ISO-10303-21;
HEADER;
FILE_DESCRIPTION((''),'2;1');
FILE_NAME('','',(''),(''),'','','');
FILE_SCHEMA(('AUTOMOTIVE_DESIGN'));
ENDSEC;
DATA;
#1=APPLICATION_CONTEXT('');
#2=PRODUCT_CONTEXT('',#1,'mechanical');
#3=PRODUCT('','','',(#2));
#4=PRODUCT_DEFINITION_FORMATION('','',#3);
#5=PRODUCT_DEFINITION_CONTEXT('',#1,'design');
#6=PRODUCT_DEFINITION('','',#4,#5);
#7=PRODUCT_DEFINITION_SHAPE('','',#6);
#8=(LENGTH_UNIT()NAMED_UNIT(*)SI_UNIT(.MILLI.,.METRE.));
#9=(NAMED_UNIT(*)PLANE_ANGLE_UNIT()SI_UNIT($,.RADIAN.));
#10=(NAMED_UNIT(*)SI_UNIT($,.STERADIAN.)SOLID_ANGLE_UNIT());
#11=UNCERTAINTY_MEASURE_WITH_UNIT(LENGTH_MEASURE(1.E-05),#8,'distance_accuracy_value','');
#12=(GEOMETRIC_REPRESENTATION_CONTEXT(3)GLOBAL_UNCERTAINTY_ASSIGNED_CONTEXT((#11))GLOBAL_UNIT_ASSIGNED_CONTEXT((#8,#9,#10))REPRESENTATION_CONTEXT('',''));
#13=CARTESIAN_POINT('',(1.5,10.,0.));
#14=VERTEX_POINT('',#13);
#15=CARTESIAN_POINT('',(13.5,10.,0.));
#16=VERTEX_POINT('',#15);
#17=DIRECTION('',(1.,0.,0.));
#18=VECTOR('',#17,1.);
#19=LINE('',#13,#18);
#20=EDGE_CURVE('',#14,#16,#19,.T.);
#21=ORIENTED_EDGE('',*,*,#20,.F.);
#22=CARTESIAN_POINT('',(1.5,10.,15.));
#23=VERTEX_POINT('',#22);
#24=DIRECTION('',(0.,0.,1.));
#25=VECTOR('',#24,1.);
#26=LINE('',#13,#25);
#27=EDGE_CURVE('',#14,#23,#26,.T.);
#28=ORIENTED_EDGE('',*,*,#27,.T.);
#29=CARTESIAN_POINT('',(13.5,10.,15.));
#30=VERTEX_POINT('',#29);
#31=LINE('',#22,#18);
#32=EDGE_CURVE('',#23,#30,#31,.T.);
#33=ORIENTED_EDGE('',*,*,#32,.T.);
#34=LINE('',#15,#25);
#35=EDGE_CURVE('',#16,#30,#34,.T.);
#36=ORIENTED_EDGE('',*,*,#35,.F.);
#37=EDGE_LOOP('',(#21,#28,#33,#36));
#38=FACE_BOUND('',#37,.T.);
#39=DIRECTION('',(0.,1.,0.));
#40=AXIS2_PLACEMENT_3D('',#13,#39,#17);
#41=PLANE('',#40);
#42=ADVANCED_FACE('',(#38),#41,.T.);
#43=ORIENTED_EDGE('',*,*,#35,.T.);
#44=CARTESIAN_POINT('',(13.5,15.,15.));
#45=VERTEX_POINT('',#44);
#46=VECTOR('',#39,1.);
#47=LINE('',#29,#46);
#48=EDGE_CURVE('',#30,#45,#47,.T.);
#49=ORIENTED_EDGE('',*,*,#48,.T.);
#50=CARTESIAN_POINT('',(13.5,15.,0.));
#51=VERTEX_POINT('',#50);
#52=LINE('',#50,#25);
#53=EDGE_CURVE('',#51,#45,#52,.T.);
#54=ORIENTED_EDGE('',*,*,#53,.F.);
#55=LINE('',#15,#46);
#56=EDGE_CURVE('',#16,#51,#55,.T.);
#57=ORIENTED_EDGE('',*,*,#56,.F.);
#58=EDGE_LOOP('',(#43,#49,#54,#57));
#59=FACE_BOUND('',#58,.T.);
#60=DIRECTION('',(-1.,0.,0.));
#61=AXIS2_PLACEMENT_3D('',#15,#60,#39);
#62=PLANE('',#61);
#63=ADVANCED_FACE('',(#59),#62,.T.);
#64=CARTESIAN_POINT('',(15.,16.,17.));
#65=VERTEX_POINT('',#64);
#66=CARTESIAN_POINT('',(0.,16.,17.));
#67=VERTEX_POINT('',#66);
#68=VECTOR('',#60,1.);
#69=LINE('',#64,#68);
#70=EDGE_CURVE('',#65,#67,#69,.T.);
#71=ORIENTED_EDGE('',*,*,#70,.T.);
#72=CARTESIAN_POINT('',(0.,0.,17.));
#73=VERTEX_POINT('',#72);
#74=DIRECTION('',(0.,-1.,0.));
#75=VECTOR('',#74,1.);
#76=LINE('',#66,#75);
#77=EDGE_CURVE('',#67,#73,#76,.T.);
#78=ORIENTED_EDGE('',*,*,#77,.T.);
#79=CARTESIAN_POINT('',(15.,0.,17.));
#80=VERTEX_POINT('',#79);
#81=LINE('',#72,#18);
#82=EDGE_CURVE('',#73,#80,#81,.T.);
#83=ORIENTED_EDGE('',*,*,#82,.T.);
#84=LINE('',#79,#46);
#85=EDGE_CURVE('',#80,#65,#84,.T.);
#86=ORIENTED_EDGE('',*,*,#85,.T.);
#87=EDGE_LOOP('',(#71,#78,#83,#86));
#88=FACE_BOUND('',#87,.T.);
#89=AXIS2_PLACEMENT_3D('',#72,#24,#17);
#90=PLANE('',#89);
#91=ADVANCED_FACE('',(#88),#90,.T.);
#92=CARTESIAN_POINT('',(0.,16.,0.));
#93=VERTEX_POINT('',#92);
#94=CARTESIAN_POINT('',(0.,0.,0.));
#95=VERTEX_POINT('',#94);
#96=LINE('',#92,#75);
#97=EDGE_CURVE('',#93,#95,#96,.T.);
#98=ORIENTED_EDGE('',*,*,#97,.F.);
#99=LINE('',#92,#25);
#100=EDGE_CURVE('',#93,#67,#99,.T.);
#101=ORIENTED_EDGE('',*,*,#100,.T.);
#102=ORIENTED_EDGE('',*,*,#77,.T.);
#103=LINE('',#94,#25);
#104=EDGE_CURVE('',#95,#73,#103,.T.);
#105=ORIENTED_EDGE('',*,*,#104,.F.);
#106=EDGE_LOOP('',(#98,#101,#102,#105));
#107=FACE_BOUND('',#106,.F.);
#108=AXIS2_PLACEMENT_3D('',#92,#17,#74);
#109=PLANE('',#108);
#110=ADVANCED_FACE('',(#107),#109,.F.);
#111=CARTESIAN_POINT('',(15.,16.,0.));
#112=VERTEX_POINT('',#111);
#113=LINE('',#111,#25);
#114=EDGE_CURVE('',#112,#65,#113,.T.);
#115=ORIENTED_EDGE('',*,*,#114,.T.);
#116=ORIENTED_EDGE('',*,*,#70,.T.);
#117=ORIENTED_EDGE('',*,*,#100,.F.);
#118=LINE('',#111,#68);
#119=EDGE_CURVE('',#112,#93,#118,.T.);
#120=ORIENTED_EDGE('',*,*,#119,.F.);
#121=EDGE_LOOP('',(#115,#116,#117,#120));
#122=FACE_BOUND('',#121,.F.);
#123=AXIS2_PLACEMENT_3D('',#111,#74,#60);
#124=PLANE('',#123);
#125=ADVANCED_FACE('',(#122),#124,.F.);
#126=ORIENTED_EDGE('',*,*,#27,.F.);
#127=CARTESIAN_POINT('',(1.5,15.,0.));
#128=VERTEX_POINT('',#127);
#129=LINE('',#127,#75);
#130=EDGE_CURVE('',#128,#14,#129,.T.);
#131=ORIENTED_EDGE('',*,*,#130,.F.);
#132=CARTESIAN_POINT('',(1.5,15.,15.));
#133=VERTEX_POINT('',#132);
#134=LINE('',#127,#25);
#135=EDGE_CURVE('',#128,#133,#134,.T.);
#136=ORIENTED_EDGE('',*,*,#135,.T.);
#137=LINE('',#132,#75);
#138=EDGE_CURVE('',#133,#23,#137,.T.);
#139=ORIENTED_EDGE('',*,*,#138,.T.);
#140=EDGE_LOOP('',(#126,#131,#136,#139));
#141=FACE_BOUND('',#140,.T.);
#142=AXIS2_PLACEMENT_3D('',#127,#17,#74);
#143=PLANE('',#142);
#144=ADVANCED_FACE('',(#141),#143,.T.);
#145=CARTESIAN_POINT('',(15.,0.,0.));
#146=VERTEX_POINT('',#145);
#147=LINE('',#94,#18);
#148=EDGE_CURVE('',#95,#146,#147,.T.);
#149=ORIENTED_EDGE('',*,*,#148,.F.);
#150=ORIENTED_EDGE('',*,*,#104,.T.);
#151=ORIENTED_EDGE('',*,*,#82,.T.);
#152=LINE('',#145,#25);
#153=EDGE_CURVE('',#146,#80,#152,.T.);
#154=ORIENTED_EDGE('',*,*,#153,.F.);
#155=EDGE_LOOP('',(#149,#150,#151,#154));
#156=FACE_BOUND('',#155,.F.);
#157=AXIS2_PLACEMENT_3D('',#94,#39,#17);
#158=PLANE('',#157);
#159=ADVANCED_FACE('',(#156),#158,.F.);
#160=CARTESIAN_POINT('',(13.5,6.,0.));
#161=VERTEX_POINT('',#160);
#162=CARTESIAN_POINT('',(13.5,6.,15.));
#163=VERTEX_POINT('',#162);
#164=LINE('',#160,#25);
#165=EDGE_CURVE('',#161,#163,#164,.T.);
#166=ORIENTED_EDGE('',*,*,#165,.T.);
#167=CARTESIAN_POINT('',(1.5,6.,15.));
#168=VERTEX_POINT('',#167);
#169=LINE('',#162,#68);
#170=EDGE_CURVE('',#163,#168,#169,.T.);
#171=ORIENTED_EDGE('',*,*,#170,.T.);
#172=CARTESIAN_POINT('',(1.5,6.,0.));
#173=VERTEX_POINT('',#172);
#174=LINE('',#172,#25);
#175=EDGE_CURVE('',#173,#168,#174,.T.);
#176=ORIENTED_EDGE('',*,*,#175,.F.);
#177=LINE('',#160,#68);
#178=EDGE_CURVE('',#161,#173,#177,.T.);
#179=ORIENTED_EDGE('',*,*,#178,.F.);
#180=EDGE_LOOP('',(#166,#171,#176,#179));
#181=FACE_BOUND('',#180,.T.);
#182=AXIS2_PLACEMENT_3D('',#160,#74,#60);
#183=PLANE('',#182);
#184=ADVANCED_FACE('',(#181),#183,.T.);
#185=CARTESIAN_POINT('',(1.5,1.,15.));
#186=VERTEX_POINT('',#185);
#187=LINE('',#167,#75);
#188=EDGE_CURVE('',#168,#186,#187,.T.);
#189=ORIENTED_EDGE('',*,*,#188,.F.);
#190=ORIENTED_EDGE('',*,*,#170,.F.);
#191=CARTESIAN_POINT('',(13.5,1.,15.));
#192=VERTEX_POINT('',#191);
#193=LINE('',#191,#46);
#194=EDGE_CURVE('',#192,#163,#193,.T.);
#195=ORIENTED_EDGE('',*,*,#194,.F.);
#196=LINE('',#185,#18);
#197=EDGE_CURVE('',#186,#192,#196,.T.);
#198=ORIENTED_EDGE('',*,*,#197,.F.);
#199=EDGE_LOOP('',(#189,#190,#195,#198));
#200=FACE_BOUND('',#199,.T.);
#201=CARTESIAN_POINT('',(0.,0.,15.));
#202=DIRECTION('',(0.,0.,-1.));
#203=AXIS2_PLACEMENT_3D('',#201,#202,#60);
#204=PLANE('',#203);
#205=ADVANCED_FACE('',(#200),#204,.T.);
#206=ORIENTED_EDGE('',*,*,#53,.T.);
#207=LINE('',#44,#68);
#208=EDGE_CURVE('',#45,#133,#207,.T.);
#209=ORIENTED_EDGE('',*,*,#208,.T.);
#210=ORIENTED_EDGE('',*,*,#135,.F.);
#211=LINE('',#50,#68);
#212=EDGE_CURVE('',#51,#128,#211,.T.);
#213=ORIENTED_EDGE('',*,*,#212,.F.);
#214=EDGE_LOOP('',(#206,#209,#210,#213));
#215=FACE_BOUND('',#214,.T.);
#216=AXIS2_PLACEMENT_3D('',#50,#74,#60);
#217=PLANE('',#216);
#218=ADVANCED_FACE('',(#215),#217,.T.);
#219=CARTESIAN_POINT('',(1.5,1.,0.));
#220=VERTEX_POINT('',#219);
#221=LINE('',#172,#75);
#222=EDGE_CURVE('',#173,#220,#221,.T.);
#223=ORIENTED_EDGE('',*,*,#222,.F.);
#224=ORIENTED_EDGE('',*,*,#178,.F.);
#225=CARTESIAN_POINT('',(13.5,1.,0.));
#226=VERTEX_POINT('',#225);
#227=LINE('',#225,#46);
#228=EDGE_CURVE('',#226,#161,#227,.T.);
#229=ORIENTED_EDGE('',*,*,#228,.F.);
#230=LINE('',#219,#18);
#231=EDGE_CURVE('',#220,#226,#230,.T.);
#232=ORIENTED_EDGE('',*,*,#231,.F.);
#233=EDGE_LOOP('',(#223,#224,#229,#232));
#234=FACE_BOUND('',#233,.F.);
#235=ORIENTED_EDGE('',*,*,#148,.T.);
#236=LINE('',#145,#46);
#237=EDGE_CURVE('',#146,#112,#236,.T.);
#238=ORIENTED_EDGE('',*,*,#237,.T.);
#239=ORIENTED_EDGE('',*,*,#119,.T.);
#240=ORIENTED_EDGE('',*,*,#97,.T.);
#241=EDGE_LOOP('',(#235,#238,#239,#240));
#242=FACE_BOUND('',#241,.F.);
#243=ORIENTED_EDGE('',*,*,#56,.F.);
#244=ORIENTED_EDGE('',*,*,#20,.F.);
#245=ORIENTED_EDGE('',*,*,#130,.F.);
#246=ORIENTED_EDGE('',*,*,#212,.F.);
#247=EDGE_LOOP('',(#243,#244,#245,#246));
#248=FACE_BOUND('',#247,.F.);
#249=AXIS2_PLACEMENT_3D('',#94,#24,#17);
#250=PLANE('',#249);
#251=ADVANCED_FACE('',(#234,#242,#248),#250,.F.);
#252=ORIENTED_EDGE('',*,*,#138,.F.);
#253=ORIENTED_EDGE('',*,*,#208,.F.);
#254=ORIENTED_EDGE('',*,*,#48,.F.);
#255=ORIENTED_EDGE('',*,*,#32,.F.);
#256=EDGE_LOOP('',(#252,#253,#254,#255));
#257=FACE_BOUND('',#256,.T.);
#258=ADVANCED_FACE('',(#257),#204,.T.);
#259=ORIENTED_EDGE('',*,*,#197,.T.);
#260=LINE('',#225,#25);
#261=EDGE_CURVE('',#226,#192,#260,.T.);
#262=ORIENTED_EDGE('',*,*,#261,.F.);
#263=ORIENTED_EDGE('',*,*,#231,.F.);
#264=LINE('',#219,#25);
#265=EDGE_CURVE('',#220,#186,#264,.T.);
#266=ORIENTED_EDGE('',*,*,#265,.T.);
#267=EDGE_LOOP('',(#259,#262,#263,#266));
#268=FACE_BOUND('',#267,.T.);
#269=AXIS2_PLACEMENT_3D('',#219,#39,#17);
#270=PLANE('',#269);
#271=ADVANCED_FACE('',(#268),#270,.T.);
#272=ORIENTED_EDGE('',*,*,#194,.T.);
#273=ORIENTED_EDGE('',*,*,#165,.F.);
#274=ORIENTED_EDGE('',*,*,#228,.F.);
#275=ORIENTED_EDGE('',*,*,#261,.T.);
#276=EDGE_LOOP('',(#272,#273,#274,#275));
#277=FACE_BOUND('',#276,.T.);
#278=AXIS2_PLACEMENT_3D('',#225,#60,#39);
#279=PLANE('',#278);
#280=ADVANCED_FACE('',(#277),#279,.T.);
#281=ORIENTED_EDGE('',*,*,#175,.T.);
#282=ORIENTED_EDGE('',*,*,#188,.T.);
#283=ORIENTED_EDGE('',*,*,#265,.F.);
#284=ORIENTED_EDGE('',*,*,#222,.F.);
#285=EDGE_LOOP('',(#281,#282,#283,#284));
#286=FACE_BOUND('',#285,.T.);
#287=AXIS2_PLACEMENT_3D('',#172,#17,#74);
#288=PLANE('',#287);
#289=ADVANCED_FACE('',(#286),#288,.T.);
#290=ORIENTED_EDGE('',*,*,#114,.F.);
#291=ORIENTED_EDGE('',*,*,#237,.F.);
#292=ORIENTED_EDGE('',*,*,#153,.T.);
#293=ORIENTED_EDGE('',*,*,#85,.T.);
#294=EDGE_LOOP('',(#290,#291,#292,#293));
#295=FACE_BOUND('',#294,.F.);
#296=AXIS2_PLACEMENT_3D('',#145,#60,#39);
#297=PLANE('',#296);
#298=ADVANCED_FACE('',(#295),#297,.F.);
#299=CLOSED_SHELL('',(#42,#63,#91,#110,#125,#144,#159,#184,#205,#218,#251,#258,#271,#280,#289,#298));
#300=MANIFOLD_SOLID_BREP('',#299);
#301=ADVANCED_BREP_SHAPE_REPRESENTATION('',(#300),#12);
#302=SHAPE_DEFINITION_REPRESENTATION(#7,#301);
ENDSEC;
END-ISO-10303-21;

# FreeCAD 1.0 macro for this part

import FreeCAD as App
import Part
import Sketcher
from FreeCAD import Vector
Q = App.Units.Quantity


def add_polygon(sketch, points):
    """Adds a closed chain of lines whose ends are joined by coincident constraints."""
    first, n = sketch.GeometryCount, len(points)
    for a, b in zip(points, points[1:] + points[:1]):
        sketch.addGeometry(Part.LineSegment(App.Vector(*a, 0), App.Vector(*b, 0)), False)
    for i in range(n):
        sketch.addConstraint(Sketcher.Constraint("Coincident", first + i, 2, first + (i + 1) % n, 1))

doc = App.newDocument("Part")
body = doc.addObject("PartDesign::Body", "Body")

sketch1 = body.newObject("Sketcher::SketchObject", "Sketch")
sketch1.AttachmentSupport = (doc.getObject("XY_Plane"), [""])
sketch1.MapMode = "FlatFace"
add_polygon(sketch1, [(0, 16), (0, 0), (15, 0), (15, 16)])
sketch1.addConstraint(Sketcher.Constraint("Vertical", 0))
sketch1.addConstraint(Sketcher.Constraint("Horizontal", 1))
sketch1.addConstraint(Sketcher.Constraint("Vertical", 2))
sketch1.addConstraint(Sketcher.Constraint("Horizontal", 3))
sketch1.addConstraint(Sketcher.Constraint("Coincident", 0, 2, -1, 1))
sketch1.addConstraint(Sketcher.Constraint("DistanceX", 1, 1, 1, 2, Q("15 mm")))
sketch1.addConstraint(Sketcher.Constraint("DistanceY", 0, 2, 0, 1, Q("16 mm")))
pad1 = body.newObject("PartDesign::Pad", "Pad")
pad1.Profile = sketch1
pad1.Length = 17

sketch2 = body.newObject("Sketcher::SketchObject", "Sketch001")
sketch2.AttachmentSupport = (doc.getObject("XY_Plane"), [""])
sketch2.MapMode = "FlatFace"
add_polygon(sketch2, [(2, 15), (14, 15), (14, 10), (2, 10)])
add_polygon(sketch2, [(2, 6), (14, 6), (14, 1), (2, 1)])
sketch2.addConstraint(Sketcher.Constraint("Horizontal", 0))
sketch2.addConstraint(Sketcher.Constraint("Vertical", 1))
sketch2.addConstraint(Sketcher.Constraint("Horizontal", 2))
sketch2.addConstraint(Sketcher.Constraint("Vertical", 3))
sketch2.addConstraint(Sketcher.Constraint("Horizontal", 4))
sketch2.addConstraint(Sketcher.Constraint("Vertical", 5))
sketch2.addConstraint(Sketcher.Constraint("Horizontal", 6))
sketch2.addConstraint(Sketcher.Constraint("Vertical", 7))
sketch2.addConstraint(Sketcher.Constraint("Vertical", 1, 2, 4, 2))
sketch2.addConstraint(Sketcher.Constraint("Vertical", 3, 2, 6, 2))
sketch2.addConstraint(Sketcher.Constraint("Equal", 3, 5))
sketch2.addConstraint(Sketcher.Constraint("DistanceX", 0, 1, 0, 2, Q("12 mm")))
sketch2.addConstraint(Sketcher.Constraint("DistanceY", 1, 2, 1, 1, Q("5 mm")))
sketch2.addConstraint(Sketcher.Constraint("DistanceY", -1, 1, 5, 2, Q("1 mm")))
sketch2.addConstraint(Sketcher.Constraint("DistanceY", 4, 2, 1, 2, Q("4 mm")))
sketch2.addConstraint(Sketcher.Constraint("DistanceX", -1, 1, 0, 2, Q("13.5 mm")))
pocket1 = body.newObject("PartDesign::Pocket", "Pocket")
pocket1.Profile = sketch2
pocket1.Length = 15
pocket1.Reversed = True

doc.recompute()
